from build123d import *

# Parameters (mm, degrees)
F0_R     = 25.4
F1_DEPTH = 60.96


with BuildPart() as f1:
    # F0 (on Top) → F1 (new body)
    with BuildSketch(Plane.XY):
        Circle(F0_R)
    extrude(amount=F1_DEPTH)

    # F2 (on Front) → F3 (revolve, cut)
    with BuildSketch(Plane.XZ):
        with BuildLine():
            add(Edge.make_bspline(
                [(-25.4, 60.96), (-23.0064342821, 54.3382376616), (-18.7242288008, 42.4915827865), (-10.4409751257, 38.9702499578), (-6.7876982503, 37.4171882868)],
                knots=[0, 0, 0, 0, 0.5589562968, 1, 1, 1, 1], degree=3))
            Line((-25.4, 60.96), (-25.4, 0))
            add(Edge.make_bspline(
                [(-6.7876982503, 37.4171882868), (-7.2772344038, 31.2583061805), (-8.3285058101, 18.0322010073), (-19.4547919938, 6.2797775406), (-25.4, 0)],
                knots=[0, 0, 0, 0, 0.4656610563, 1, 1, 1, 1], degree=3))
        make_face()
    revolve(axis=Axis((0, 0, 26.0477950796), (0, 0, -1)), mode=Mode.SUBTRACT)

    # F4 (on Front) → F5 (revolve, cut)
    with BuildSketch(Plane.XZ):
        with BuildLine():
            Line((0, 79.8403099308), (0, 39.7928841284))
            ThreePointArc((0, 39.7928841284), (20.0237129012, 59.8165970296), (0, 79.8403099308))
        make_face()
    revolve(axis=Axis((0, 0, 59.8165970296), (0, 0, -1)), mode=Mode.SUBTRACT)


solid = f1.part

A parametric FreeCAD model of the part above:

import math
import FreeCAD as App
import Part
import Sketcher

V = App.Vector
Q = App.Units.Quantity

doc = App.newDocument("Part")
body = doc.addObject("PartDesign::Body", "Body")

sketch1 = body.newObject("Sketcher::SketchObject", "Sketch")
sketch1.AttachmentSupport = (doc.getObject("XY_Plane"), [""])
sketch1.MapMode = "FlatFace"
sketch1.addGeometry(Part.Circle(V(0, 0, 0), V(0, 0, 1), 25), False)
sketch1.addConstraint([
    Sketcher.Constraint("Coincident", 0, 3, -1, 1),
    Sketcher.Constraint("Diameter", 0, Q("2 in")),
])
pad1 = body.newObject("PartDesign::Pad", "Pad")
pad1.Profile = sketch1
pad1.Length = Q("2.4 in")

sketch2 = body.newObject("Sketcher::SketchObject", "Sketch001")
sketch2.AttachmentSupport = (doc.getObject("XZ_Plane"), [""])
sketch2.MapMode = "FlatFace"
sketch2.addGeometry([
    Part.BSplineCurve([V(-25.4, 60.96, 0), V(-23.006434, 54.338238, 0), V(-18.724229, 42.491583, 0), V(-10.440975, 38.97025, 0), V(-6.787698, 37.417188, 0)], [4, 1, 4], [0, 0.558956297, 1], False, 3, [1, 1, 1, 1, 1], False),
    Part.LineSegment(V(-25.4, 60.96, 0), V(-25.4, 0, 0)),
    Part.BSplineCurve([V(-6.787698, 37.417188, 0), V(-7.277234, 31.258306, 0), V(-8.328506, 18.032201, 0), V(-19.454792, 6.279778, 0), V(-25.4, 0, 0)], [4, 1, 4], [0, 0.465661056, 1], False, 3, [1, 1, 1, 1, 1], False),
], False)
sketch2.addConstraint([
    Sketcher.Constraint("Block", 0),
    Sketcher.Constraint("Block", 2),
    Sketcher.Constraint("Coincident", 0, 1, 1, 1),
    Sketcher.Constraint("Coincident", 1, 2, 2, 2),
])
groove = body.newObject("PartDesign::Groove", "Groove")
groove.Profile = sketch2
groove.ReferenceAxis = (sketch2, ["V_Axis"])
groove.Angle = 360

sketch3 = body.newObject("Sketcher::SketchObject", "Sketch002")
sketch3.AttachmentSupport = (doc.getObject("XZ_Plane"), [""])
sketch3.MapMode = "FlatFace"
sketch3.addGeometry([
    Part.LineSegment(V(0, 80, 0), V(0, 40, 0)),
    Part.ArcOfCircle(Part.Circle(V(0, 60, 0), V(0, 0, 1), 20), math.radians(-90), math.radians(90)),
], False)
sketch3.addConstraint([
    Sketcher.Constraint("Coincident", 0, 1, 1, 2),
    Sketcher.Constraint("Coincident", 1, 1, 0, 2),
    Sketcher.Constraint("Vertical", 0),
    Sketcher.Constraint("PointOnObject", 1, 3, -2),
    Sketcher.Constraint("PointOnObject", 0, 1, -2),
    Sketcher.Constraint("Radius", 1, 20.023713),
    Sketcher.Constraint("DistanceY", -1, 1, 0, 1, 79.84031),
])
groove2 = body.newObject("PartDesign::Groove", "Groove001")
groove2.Profile = sketch3
groove2.ReferenceAxis = (sketch3, ["V_Axis"])
groove2.Angle = 360

doc.recompute()
